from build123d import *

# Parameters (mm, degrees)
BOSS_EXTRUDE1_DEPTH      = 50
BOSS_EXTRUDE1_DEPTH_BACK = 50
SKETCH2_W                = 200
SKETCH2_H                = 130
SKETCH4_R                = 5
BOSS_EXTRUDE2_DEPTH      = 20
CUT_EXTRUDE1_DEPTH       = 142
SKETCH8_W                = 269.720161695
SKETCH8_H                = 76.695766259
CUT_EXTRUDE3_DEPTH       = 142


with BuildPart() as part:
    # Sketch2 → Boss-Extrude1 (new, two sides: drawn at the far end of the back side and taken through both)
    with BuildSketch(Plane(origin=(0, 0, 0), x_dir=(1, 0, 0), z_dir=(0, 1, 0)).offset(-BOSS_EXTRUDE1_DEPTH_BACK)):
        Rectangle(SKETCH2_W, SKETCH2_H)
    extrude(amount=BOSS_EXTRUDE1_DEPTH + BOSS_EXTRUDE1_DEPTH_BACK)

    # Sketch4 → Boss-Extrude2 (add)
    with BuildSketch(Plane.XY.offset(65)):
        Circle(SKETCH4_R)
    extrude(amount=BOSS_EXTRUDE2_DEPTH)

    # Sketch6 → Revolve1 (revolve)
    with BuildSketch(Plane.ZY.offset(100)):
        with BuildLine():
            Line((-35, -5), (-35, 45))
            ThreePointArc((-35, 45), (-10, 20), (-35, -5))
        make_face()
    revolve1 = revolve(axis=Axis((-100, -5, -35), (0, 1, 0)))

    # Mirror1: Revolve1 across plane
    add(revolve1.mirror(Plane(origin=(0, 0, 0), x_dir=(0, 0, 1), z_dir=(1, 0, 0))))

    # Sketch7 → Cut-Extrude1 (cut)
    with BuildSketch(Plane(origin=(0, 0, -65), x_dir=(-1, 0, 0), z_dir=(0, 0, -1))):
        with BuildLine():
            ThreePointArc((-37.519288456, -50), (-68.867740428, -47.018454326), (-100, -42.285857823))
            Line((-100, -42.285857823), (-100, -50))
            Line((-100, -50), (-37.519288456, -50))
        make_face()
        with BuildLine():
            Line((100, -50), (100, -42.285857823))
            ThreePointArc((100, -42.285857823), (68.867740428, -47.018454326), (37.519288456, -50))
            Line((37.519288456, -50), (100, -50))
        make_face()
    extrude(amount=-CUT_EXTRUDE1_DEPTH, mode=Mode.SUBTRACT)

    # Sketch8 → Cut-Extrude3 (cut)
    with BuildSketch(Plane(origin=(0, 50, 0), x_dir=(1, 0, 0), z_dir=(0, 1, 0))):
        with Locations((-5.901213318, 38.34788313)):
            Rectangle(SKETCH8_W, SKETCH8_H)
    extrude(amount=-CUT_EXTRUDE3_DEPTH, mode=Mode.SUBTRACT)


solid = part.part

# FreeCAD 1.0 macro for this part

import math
import FreeCAD as App
import Part
import Sketcher

V = App.Vector
Q = App.Units.Quantity

doc = App.newDocument("Part")
body = doc.addObject("PartDesign::Body", "Body")

# Sketch on XZ plane
sketch1 = doc.addObject("Sketcher::SketchObject", "Sketch")
body.addObject(sketch1)
sketch1.AttachmentSupport = (doc.XZ_Plane, [""])
sketch1.MapMode = "FlatFace"
sketch1.addGeometry(Part.LineSegment(V(-100, -65, 0), V(-100, 65, 0)), False)
sketch1.addGeometry(Part.LineSegment(V(-100, 65, 0), V(100, 65, 0)), False)
sketch1.addGeometry(Part.LineSegment(V(100, 65, 0), V(100, -65, 0)), False)
sketch1.addGeometry(Part.LineSegment(V(100, -65, 0), V(-100, -65, 0)), False)
sketch1.addConstraint(Sketcher.Constraint("Coincident", 0, 2, 1, 1))
sketch1.addConstraint(Sketcher.Constraint("Coincident", 1, 2, 2, 1))
sketch1.addConstraint(Sketcher.Constraint("Coincident", 2, 2, 3, 1))
sketch1.addConstraint(Sketcher.Constraint("Coincident", 3, 2, 0, 1))
sketch1.addConstraint(Sketcher.Constraint("Vertical", 0))
sketch1.addConstraint(Sketcher.Constraint("Horizontal", 1))
sketch1.addConstraint(Sketcher.Constraint("Vertical", 2))
sketch1.addConstraint(Sketcher.Constraint("Horizontal", 3))
sketch1.addConstraint(Sketcher.Constraint("Symmetric", 0, 2, 2, 2, -1, 1))
sketch1.addConstraint(Sketcher.Constraint("DistanceX", 1, 1, 1, 2, Q("200 mm")))
sketch1.addConstraint(Sketcher.Constraint("DistanceY", 0, 1, 0, 2, Q("130 mm")))
pad1 = doc.addObject("PartDesign::Pad", "Pad")
body.addObject(pad1)
pad1.Profile = sketch1
pad1.Type = "TwoLengths"
pad1.Length = 50
pad1.Length2 = 50
pad1.Reversed = True

# Sketch on XY plane
sketch2 = doc.addObject("Sketcher::SketchObject", "Sketch001")
body.addObject(sketch2)
sketch2.AttachmentSupport = (doc.XY_Plane, [""])
sketch2.MapMode = "FlatFace"
sketch2.AttachmentOffset = App.Placement(V(0, 0, 65), App.Rotation())
sketch2.addGeometry(Part.Circle(V(0, 0, 0), V(0, 0, 1), 5), False)
sketch2.addConstraint(Sketcher.Constraint("Coincident", 0, 3, -1, 1))
sketch2.addConstraint(Sketcher.Constraint("Diameter", 0, Q("10 mm")))
pad2 = doc.addObject("PartDesign::Pad", "Pad001")
body.addObject(pad2)
pad2.Profile = sketch2
pad2.Length = 20

# Sketch on YZ plane
sketch3 = doc.addObject("Sketcher::SketchObject", "Sketch002")
body.addObject(sketch3)
sketch3.AttachmentSupport = (doc.YZ_Plane, [""])
sketch3.MapMode = "FlatFace"
sketch3.AttachmentOffset = App.Placement(V(0, 0, -100), App.Rotation())
sketch3.addGeometry(Part.LineSegment(V(45, -35, 0), V(-5, -35, 0)), False)
sketch3.addGeometry(Part.ArcOfCircle(Part.Circle(V(20, -35, 0), V(0, 0, 1), 25), math.radians(0), math.radians(180)), False)
sketch3.addGeometry(Part.LineSegment(V(-5, -35, 0), V(45, -35, 0)), True)  # axis
sketch3.addConstraint(Sketcher.Constraint("Coincident", 0, 1, 1, 1))
sketch3.addConstraint(Sketcher.Constraint("Coincident", 1, 2, 0, 2))
sketch3.addConstraint(Sketcher.Constraint("Horizontal", 0))
sketch3.addConstraint(Sketcher.Constraint("Horizontal", 2))
sketch3.addConstraint(Sketcher.Constraint("Coincident", 2, 1, 1, 2))
sketch3.addConstraint(Sketcher.Constraint("Horizontal", 1, 3, 0, 1))
sketch3.addConstraint(Sketcher.Constraint("Equal", 0, 2))
sketch3.addConstraint(Sketcher.Constraint("Radius", 1, Q("25 mm")))
sketch3.addConstraint(Sketcher.Constraint("DistanceX", -1, 1, 1, 3, Q("20 mm")))
sketch3.addConstraint(Sketcher.Constraint("DistanceY", 1, 3, -1, 1, Q("35 mm")))
revolution = doc.addObject("PartDesign::Revolution", "Revolution")
body.addObject(revolution)
revolution.Profile = sketch3
revolution.ReferenceAxis = (sketch3, ["Axis0"])
revolution.Angle = 360
doc.recompute()

mirrored = doc.addObject("PartDesign::Mirrored", "Mirrored")
body.addObject(mirrored)
mirrored.Originals = [revolution]
mirrored.MirrorPlane = (doc.YZ_Plane, [""])
body.Tip = mirrored

# Sketch on XY plane
sketch4 = doc.addObject("Sketcher::SketchObject", "Sketch003")
body.addObject(sketch4)
sketch4.AttachmentSupport = (doc.XY_Plane, [""])
sketch4.MapMode = "FlatFace"
sketch4.AttachmentOffset = App.Placement(V(0, 0, -65), App.Rotation())
sketch4.addGeometry(Part.ArcOfCircle(Part.Circle(V(0, 511, 0), V(0, 0, 1), 562), math.radians(-86.17), math.radians(-79.75)), False)
sketch4.addGeometry(Part.LineSegment(V(100, -42, 0), V(100, -50, 0)), False)
sketch4.addGeometry(Part.LineSegment(V(100, -50, 0), V(38, -50, 0)), False)
sketch4.addGeometry(Part.LineSegment(V(-100, -50, 0), V(-100, -42, 0)), False)
sketch4.addGeometry(Part.ArcOfCircle(Part.Circle(V(0, 511, 0), V(0, 0, 1), 562), math.radians(-100.25), math.radians(-93.83)), False)
sketch4.addGeometry(Part.LineSegment(V(-38, -50, 0), V(-100, -50, 0)), False)
sketch4.addConstraint(Sketcher.Constraint("Coincident", 0, 2, 1, 1))
sketch4.addConstraint(Sketcher.Constraint("Coincident", 1, 2, 2, 1))
sketch4.addConstraint(Sketcher.Constraint("Coincident", 2, 2, 0, 1))
sketch4.addConstraint(Sketcher.Constraint("Coincident", 3, 2, 4, 1))
sketch4.addConstraint(Sketcher.Constraint("Coincident", 4, 2, 5, 1))
sketch4.addConstraint(Sketcher.Constraint("Coincident", 5, 2, 3, 1))
sketch4.addConstraint(Sketcher.Constraint("Vertical", 1))
sketch4.addConstraint(Sketcher.Constraint("Horizontal", 2))
sketch4.addConstraint(Sketcher.Constraint("Vertical", 3))
sketch4.addConstraint(Sketcher.Constraint("Horizontal", 5))
sketch4.addConstraint(Sketcher.Constraint("Coincident", 4, 3, 0, 3))
sketch4.addConstraint(Sketcher.Constraint("Equal", 0, 4))
sketch4.addConstraint(Sketcher.Constraint("Symmetric", 2, 2, 4, 2, -2))
sketch4.addConstraint(Sketcher.Constraint("Equal", 2, 5))
sketch4.addConstraint(Sketcher.Constraint("DistanceX", -1, 1, 1, 2, Q("100 mm")))
sketch4.addConstraint(Sketcher.Constraint("DistanceY", 1, 2, -1, 1, Q("50 mm")))
sketch4.addConstraint(Sketcher.Constraint("Radius", 0, Q("562.029693 mm")))
sketch4.addConstraint(Sketcher.Constraint("DistanceX", 2, 2, 2, 1, Q("62.480712 mm")))
pocket1 = doc.addObject("PartDesign::Pocket", "Pocket")
body.addObject(pocket1)
pocket1.Profile = sketch4
pocket1.Length = 142
pocket1.Reversed = True

# Sketch on XZ plane
sketch5 = doc.addObject("Sketcher::SketchObject", "Sketch004")
body.addObject(sketch5)
sketch5.AttachmentSupport = (doc.XZ_Plane, [""])
sketch5.MapMode = "FlatFace"
sketch5.AttachmentOffset = App.Placement(V(0, 0, -50), App.Rotation())
sketch5.addGeometry(Part.LineSegment(V(-141, -77, 0), V(-141, 0, 0)), False)
sketch5.addGeometry(Part.LineSegment(V(-141, 0, 0), V(129, 0, 0)), False)
sketch5.addGeometry(Part.LineSegment(V(129, 0, 0), V(129, -77, 0)), False)
sketch5.addGeometry(Part.LineSegment(V(129, -77, 0), V(-141, -77, 0)), False)
sketch5.addConstraint(Sketcher.Constraint("Coincident", 0, 2, 1, 1))
sketch5.addConstraint(Sketcher.Constraint("Coincident", 1, 2, 2, 1))
sketch5.addConstraint(Sketcher.Constraint("Coincident", 2, 2, 3, 1))
sketch5.addConstraint(Sketcher.Constraint("Coincident", 3, 2, 0, 1))
sketch5.addConstraint(Sketcher.Constraint("Vertical", 0))
sketch5.addConstraint(Sketcher.Constraint("Horizontal", 1))
sketch5.addConstraint(Sketcher.Constraint("Vertical", 2))
sketch5.addConstraint(Sketcher.Constraint("Horizontal", 3))
sketch5.addConstraint(Sketcher.Constraint("PointOnObject", 0, 2, -1))
sketch5.addConstraint(Sketcher.Constraint("DistanceX", 1, 1, 1, 2, Q("269.720162 mm")))
sketch5.addConstraint(Sketcher.Constraint("DistanceY", 0, 1, 0, 2, Q("76.695766 mm")))
sketch5.addConstraint(Sketcher.Constraint("DistanceX", 0, 2, -1, 1, Q("140.761294 mm")))
pocket2 = doc.addObject("PartDesign::Pocket", "Pocket001")
body.addObject(pocket2)
pocket2.Profile = sketch5
pocket2.Length = 142
pocket2.Reversed = True

doc.recompute()
